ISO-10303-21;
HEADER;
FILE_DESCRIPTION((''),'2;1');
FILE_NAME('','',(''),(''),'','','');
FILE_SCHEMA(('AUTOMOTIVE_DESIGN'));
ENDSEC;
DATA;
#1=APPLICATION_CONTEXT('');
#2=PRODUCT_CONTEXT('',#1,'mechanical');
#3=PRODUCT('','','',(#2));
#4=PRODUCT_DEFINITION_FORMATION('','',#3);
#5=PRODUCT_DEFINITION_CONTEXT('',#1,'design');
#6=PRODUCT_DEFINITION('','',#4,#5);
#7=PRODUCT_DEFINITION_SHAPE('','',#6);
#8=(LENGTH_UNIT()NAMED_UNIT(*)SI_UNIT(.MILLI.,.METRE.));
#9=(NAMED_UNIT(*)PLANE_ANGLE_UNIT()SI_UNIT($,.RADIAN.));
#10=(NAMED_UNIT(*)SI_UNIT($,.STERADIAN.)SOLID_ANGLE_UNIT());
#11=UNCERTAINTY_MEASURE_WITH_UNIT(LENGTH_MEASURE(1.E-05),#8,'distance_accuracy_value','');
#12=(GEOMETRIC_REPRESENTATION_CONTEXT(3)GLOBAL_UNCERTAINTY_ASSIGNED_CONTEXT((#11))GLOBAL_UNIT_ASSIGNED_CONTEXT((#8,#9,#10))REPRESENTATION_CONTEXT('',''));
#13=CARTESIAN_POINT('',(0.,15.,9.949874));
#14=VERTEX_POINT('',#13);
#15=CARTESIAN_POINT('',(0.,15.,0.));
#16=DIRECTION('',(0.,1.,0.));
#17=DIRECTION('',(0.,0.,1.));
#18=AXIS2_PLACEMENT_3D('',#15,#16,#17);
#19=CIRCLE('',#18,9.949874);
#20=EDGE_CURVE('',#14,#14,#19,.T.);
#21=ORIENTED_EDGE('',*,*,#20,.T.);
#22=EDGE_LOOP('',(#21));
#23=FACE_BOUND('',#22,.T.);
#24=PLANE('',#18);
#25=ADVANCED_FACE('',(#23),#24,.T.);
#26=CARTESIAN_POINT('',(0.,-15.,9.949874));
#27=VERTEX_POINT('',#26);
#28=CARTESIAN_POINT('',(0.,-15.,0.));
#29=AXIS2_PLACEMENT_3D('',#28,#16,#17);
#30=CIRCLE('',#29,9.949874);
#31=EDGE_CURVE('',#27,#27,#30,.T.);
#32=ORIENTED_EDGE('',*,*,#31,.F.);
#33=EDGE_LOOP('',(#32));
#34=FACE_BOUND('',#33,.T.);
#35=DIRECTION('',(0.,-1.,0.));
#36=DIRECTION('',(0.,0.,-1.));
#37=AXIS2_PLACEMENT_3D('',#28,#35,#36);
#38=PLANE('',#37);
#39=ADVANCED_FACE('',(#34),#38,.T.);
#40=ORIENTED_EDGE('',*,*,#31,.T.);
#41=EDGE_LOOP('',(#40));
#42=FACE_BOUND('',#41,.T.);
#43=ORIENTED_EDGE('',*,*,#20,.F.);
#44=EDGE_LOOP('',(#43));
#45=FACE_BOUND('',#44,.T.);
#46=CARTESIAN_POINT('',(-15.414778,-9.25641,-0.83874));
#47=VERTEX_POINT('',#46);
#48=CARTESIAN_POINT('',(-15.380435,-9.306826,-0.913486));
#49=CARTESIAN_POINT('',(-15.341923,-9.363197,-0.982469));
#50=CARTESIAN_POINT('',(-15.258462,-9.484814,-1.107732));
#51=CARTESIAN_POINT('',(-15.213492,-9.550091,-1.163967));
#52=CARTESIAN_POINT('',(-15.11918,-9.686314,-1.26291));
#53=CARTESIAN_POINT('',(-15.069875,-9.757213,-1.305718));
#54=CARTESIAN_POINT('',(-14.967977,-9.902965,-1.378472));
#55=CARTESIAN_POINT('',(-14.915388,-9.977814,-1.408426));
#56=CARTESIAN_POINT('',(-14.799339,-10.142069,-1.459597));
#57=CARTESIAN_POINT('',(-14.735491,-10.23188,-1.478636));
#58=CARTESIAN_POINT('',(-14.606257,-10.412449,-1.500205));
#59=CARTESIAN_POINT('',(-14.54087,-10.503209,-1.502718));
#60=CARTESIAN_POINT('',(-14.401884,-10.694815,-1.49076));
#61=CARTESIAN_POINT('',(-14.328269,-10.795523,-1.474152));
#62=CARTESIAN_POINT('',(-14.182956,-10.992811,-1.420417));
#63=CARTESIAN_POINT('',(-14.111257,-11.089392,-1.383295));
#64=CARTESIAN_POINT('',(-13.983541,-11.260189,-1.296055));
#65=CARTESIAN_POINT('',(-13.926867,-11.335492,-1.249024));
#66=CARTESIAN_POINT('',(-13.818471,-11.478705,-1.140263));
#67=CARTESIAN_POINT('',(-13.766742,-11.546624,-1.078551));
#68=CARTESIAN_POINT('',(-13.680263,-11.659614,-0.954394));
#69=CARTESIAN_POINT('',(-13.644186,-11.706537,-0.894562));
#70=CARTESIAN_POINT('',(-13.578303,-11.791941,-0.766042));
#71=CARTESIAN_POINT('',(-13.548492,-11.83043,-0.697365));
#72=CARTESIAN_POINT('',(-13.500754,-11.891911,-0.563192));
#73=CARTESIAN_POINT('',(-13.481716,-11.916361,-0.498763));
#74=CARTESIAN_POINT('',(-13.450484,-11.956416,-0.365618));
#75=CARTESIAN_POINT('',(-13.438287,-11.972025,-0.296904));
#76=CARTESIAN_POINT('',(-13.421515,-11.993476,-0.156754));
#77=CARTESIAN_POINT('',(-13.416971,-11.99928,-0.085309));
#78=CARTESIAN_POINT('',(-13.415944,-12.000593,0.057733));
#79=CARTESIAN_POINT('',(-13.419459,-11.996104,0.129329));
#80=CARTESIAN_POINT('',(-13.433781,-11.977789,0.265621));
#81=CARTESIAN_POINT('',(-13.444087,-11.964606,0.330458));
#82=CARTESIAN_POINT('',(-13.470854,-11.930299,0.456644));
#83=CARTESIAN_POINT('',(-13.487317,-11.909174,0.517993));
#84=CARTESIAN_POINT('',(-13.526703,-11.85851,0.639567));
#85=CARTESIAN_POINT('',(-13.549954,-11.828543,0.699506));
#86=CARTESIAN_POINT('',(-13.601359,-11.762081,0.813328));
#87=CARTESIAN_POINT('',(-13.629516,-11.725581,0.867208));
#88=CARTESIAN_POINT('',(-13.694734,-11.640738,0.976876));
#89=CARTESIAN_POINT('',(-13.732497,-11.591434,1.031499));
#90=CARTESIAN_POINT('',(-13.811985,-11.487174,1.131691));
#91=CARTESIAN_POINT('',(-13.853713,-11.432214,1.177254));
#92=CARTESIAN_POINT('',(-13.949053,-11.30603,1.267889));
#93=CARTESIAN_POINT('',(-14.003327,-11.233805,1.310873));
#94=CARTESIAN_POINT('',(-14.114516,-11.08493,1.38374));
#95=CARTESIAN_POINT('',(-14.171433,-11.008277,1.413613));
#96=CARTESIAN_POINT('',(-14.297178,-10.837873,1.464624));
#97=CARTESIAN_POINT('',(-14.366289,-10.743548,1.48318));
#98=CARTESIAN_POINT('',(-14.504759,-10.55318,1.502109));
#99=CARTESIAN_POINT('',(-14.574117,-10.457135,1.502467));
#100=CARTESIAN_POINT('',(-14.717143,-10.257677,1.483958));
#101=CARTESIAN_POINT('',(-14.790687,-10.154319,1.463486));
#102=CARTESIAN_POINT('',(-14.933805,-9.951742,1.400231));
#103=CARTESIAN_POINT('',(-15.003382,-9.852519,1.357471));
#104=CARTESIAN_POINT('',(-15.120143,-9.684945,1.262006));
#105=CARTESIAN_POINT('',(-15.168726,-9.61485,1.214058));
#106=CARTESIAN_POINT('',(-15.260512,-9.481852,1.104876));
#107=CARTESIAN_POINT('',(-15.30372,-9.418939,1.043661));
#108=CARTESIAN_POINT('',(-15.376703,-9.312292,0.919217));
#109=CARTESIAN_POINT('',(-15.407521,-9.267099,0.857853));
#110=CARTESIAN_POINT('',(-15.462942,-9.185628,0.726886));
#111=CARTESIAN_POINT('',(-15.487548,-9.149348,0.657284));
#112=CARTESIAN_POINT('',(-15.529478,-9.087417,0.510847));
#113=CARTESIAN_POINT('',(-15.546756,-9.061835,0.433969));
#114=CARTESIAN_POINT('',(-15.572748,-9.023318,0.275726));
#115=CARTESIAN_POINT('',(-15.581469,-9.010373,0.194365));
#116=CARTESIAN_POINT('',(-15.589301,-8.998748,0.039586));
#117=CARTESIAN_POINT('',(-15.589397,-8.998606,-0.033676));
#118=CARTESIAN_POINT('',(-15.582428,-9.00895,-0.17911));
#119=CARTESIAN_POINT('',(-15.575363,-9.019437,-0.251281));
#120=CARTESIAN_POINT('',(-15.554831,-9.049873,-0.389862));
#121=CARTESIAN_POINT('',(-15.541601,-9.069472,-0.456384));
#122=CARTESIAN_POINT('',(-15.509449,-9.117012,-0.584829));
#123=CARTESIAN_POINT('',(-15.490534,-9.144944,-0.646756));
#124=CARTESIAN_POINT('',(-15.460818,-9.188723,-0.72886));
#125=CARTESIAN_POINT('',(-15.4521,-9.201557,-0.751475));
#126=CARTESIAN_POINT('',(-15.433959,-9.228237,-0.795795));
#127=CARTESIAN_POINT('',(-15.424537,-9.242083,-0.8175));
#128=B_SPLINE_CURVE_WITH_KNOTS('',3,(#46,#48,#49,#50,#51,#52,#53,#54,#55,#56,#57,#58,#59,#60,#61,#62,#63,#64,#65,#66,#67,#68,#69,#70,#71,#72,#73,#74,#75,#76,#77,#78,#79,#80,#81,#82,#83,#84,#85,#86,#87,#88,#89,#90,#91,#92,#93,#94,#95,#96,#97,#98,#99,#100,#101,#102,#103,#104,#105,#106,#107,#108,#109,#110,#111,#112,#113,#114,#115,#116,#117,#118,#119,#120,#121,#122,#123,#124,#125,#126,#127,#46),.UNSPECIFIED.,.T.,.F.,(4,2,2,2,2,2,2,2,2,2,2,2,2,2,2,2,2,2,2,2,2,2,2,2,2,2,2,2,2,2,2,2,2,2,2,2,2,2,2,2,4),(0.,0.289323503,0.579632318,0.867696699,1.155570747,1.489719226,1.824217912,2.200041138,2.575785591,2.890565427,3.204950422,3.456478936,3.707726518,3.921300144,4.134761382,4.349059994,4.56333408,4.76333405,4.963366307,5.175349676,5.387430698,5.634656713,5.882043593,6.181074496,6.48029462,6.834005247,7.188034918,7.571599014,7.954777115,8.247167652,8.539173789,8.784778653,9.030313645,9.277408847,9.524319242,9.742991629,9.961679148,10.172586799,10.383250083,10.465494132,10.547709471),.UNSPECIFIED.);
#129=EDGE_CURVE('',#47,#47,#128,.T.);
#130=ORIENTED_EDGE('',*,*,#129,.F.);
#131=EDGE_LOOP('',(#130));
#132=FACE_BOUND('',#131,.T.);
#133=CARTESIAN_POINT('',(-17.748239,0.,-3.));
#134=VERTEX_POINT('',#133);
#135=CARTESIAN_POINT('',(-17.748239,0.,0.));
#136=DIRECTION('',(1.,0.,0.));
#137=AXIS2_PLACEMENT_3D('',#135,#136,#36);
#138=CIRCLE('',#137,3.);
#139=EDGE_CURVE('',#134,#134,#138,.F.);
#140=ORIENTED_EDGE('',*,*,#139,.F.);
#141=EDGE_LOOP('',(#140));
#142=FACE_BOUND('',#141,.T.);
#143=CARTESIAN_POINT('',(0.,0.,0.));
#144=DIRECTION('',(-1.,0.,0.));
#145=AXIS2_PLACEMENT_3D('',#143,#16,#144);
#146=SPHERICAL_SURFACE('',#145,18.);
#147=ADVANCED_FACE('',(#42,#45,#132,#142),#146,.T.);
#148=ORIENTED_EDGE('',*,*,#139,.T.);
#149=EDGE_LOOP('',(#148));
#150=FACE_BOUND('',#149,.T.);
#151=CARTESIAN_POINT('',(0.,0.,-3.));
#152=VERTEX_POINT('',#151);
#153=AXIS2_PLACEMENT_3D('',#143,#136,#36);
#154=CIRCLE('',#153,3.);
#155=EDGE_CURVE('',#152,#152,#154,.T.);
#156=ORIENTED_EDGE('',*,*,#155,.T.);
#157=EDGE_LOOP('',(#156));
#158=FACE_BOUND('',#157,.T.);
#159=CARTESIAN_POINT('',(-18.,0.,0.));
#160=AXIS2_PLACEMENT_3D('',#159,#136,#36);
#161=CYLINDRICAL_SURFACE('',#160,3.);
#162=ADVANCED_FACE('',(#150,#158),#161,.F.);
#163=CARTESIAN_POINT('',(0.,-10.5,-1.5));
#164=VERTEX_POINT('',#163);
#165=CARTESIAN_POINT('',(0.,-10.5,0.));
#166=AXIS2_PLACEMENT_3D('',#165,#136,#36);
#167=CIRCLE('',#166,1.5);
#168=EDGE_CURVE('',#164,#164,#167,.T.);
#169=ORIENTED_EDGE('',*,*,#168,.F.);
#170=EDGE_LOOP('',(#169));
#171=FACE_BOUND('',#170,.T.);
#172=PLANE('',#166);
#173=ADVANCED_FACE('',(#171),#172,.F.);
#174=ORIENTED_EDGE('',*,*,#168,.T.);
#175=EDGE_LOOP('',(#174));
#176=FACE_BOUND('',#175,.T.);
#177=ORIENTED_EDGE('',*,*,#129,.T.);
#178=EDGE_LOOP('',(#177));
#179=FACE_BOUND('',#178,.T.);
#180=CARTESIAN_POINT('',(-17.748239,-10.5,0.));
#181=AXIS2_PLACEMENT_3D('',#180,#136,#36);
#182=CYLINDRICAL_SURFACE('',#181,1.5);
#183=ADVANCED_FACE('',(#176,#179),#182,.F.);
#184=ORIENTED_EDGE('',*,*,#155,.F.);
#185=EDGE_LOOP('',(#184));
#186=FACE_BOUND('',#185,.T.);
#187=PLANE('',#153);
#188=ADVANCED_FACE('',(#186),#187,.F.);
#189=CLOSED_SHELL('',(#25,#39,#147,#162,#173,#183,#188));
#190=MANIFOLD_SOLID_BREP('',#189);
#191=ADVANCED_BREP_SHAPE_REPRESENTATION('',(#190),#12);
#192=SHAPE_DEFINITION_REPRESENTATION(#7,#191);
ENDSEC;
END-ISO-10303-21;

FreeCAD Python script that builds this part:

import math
import FreeCAD as App
import Part
import Sketcher

doc = App.newDocument("Part")
body = doc.addObject("PartDesign::Body", "Body")

sketch1 = body.newObject("Sketcher::SketchObject", "Sketch")
sketch1.AttachmentSupport = (doc.getObject("XY_Plane"), [""])
sketch1.MapMode = "FlatFace"
sketch1.addGeometry(Part.LineSegment(App.Vector(0, -15, 0), App.Vector(0, 15, 0)), False)
sketch1.addGeometry(Part.LineSegment(App.Vector(0, 15, 0), App.Vector(-10, 15, 0)), False)
sketch1.addGeometry(Part.ArcOfCircle(Part.Circle(App.Vector(0, 0, 0), App.Vector(0, 0, 1), 18), math.radians(124), math.radians(236)), False)
sketch1.addGeometry(Part.LineSegment(App.Vector(-10, -15, 0), App.Vector(0, -15, 0)), False)
sketch1.addConstraint(Sketcher.Constraint("Coincident", 0, 2, 1, 1))
sketch1.addConstraint(Sketcher.Constraint("Coincident", 1, 2, 2, 1))
sketch1.addConstraint(Sketcher.Constraint("Coincident", 2, 2, 3, 1))
sketch1.addConstraint(Sketcher.Constraint("Coincident", 3, 2, 0, 1))
sketch1.addConstraint(Sketcher.Constraint("Vertical", 0))
sketch1.addConstraint(Sketcher.Constraint("Horizontal", 1))
sketch1.addConstraint(Sketcher.Constraint("Horizontal", 3))
sketch1.addConstraint(Sketcher.Constraint("Coincident", 2, 3, -1, 1))
sketch1.addConstraint(Sketcher.Constraint("Symmetric", 0, 2, 3, 2, -1, 1))
sketch1.addConstraint(Sketcher.Constraint("Radius", 2, 18.0))
sketch1.addConstraint(Sketcher.Constraint("DistanceY", 0, 1, 0, 2, 30.0))
revolution = body.newObject("PartDesign::Revolution", "Revolution")
revolution.Profile = sketch1
revolution.ReferenceAxis = (sketch1, ["V_Axis"])
revolution.Angle = 360

sketch2 = body.newObject("Sketcher::SketchObject", "Sketch001")
sketch2.AttachmentSupport = (doc.getObject("YZ_Plane"), [""])
sketch2.MapMode = "FlatFace"
sketch2.addGeometry(Part.Circle(App.Vector(0, 0, 0), App.Vector(0, 0, 1), 3), False)
sketch2.addConstraint(Sketcher.Constraint("Coincident", 0, 3, -1, 1))
sketch2.addConstraint(Sketcher.Constraint("Diameter", 0, 6.0))
pocket1 = body.newObject("PartDesign::Pocket", "Pocket")
pocket1.Profile = sketch2
pocket1.Type = "ThroughAll"

sketch3 = body.newObject("Sketcher::SketchObject", "Sketch002")
sketch3.AttachmentSupport = (doc.getObject("YZ_Plane"), [""])
sketch3.MapMode = "FlatFace"
sketch3.addGeometry(Part.Circle(App.Vector(-10.5, 0, 0), App.Vector(0, 0, 1), 1.5), False)
sketch3.addConstraint(Sketcher.Constraint("PointOnObject", 0, 3, -1))
sketch3.addConstraint(Sketcher.Constraint("Diameter", 0, 3.0))
sketch3.addConstraint(Sketcher.Constraint("DistanceX", 0, 3, -1, 1, 10.5))
pocket2 = body.newObject("PartDesign::Pocket", "Pocket001")
pocket2.Profile = sketch3
pocket2.Type = "ThroughAll"

doc.recompute()
